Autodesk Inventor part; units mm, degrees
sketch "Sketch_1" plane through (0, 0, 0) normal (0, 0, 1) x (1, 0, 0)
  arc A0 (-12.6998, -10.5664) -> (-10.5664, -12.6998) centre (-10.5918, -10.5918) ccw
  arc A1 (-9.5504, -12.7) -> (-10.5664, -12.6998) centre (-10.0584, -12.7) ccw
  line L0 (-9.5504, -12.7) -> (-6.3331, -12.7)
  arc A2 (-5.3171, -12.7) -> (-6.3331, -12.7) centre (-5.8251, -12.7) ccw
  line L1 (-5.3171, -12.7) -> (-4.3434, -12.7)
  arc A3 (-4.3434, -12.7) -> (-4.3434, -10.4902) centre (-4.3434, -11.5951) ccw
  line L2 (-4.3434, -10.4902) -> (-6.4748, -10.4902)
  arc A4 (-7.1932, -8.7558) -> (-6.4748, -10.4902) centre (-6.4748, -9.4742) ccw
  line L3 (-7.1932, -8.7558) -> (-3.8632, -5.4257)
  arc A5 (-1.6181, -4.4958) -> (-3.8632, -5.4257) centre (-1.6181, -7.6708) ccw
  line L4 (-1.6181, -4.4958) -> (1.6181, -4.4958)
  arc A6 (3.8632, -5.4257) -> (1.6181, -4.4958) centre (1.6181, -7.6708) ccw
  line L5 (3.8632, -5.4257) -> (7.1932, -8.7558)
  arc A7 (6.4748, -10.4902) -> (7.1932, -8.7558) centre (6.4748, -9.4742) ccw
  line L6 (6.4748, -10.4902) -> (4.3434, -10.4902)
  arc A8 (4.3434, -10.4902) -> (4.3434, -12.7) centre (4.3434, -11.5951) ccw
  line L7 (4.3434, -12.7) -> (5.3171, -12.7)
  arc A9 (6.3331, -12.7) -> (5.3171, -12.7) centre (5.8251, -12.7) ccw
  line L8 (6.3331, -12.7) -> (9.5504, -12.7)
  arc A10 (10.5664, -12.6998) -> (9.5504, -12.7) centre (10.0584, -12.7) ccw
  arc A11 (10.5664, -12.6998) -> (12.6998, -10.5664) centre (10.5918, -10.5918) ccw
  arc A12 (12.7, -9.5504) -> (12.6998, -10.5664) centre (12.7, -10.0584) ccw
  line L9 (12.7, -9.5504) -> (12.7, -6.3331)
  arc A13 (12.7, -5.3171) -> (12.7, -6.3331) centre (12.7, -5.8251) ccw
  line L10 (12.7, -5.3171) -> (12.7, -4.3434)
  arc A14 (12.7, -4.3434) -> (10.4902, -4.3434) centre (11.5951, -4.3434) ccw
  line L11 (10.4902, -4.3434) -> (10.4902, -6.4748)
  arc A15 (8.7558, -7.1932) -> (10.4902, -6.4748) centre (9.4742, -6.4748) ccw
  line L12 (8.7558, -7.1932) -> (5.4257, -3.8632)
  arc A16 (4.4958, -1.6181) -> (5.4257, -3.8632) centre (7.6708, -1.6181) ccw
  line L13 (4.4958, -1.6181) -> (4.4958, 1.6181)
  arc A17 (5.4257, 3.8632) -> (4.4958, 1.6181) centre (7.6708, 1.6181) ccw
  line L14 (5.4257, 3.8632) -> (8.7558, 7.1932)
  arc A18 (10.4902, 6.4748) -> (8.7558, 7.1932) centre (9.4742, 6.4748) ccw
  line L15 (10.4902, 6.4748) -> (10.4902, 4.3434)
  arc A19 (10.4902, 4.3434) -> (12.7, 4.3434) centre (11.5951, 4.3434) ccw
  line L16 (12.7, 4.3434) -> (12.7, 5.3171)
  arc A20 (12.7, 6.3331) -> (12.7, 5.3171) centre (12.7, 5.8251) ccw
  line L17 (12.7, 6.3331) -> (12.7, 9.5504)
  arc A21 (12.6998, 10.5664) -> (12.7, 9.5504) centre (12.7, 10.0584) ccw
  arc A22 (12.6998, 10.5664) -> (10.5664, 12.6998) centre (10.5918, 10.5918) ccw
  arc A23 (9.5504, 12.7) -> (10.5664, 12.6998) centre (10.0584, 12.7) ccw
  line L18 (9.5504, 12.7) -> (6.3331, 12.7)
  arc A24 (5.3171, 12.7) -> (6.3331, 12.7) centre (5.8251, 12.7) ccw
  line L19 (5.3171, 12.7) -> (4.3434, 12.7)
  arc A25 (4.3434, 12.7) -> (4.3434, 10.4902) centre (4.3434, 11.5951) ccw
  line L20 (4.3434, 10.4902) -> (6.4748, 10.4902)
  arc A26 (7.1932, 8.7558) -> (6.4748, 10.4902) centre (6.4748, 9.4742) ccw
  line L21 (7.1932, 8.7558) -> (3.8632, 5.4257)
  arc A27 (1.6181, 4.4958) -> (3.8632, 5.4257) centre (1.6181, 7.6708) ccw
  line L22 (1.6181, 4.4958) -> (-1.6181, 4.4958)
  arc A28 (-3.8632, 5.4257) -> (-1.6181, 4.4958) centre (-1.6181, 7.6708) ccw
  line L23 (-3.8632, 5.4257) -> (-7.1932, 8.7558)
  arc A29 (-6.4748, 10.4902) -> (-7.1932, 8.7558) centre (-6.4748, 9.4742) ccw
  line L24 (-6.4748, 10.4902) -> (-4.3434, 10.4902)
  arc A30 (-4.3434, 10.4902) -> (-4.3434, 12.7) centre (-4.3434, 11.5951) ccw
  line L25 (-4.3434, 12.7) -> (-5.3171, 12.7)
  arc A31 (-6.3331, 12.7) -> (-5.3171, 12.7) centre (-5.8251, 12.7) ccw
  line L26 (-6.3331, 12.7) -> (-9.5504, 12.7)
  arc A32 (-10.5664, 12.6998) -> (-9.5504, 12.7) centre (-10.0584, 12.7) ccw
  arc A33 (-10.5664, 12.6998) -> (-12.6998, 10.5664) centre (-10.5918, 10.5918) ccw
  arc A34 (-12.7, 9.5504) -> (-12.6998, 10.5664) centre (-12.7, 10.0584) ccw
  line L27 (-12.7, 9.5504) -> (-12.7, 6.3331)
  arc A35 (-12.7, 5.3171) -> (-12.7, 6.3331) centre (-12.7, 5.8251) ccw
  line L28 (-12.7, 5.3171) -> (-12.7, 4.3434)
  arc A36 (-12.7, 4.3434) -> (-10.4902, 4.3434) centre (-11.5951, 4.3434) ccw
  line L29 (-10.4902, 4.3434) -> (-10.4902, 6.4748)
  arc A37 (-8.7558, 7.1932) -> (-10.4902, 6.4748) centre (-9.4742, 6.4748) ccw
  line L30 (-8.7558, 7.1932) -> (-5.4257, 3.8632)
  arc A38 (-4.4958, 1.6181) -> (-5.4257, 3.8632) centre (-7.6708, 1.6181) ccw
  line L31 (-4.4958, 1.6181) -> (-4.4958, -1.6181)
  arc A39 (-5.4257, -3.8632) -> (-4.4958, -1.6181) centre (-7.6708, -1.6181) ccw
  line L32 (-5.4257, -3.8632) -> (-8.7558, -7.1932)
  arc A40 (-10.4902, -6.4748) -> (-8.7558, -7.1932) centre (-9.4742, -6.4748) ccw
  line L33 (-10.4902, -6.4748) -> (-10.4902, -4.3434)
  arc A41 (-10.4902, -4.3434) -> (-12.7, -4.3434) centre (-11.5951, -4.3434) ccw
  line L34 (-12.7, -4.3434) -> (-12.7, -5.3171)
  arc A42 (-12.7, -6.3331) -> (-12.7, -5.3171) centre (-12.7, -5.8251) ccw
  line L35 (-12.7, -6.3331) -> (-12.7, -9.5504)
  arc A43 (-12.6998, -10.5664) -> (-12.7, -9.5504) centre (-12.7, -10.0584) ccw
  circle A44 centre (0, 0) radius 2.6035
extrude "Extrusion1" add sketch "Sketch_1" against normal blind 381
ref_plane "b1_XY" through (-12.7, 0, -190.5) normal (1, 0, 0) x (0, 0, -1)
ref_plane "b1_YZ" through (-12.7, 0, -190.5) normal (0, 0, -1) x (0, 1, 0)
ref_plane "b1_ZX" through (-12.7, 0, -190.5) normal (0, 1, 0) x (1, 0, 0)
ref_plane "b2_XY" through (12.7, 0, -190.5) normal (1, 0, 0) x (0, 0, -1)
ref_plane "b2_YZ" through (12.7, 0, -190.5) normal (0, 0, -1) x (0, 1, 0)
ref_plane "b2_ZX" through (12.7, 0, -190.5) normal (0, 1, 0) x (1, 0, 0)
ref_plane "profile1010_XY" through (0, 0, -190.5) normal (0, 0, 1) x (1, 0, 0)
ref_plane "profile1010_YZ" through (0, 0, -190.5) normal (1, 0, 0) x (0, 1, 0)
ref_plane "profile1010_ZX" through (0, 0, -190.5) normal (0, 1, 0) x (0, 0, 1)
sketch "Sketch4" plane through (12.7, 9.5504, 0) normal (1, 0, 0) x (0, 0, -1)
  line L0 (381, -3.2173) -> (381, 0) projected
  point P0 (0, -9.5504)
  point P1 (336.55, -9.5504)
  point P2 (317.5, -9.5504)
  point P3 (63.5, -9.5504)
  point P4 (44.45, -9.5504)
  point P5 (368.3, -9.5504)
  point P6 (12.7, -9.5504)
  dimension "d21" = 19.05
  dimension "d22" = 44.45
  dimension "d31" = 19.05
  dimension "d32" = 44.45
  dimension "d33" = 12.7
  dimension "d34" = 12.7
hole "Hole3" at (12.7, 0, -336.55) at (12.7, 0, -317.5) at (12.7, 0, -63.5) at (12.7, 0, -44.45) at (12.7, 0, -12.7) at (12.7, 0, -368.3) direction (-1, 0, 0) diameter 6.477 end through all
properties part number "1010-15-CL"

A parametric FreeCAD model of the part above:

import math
import FreeCAD as App
import Part
import Sketcher

V = App.Vector
Q = App.Units.Quantity

doc = App.newDocument("Part")
body = doc.addObject("PartDesign::Body", "Body")

# Sketch on XY plane
sketch1 = body.newObject("Sketcher::SketchObject", "Sketch")
sketch1.AttachmentSupport = (doc.getObject("XY_Plane"), [""])
sketch1.MapMode = "FlatFace"
sketch1.addGeometry([
    Part.ArcOfCircle(Part.Circle(V(-12.7, -10.1, 0), V(0, 0, 1), 0.5), math.radians(-90), math.radians(90)),  # 0
    Part.ArcOfCircle(Part.Circle(V(-10.6, -10.6, 0), V(0, 0, 1), 2.1), math.radians(179), math.radians(271)),  # 1
    Part.ArcOfCircle(Part.Circle(V(-10.1, -12.7, 0), V(0, 0, 1), 0.5), math.radians(0), math.radians(180)),  # 2
    Part.LineSegment(V(-9.6, -12.7, 0), V(-6.3, -12.7, 0)),  # 3
    Part.ArcOfCircle(Part.Circle(V(-5.8, -12.7, 0), V(0, 0, 1), 0.5), math.radians(0), math.radians(180)),  # 4
    Part.LineSegment(V(-5.3, -12.7, 0), V(-4.3, -12.7, 0)),  # 5
    Part.ArcOfCircle(Part.Circle(V(-4.3, -11.6, 0), V(0, 0, 1), 1.1), math.radians(-90), math.radians(90)),  # 6
    Part.LineSegment(V(-4.3, -10.5, 0), V(-6.5, -10.5, 0)),  # 7
    Part.ArcOfCircle(Part.Circle(V(-6.5, -9.5, 0), V(0, 0, 1), 1), math.radians(135), math.radians(270)),  # 8
    Part.LineSegment(V(-7.2, -8.8, 0), V(-3.9, -5.4, 0)),  # 9
    Part.ArcOfCircle(Part.Circle(V(-1.6, -7.7, 0), V(0, 0, 1), 3.2), math.radians(90), math.radians(135)),  # 10
    Part.LineSegment(V(-1.6, -4.5, 0), V(1.6, -4.5, 0)),  # 11
    Part.ArcOfCircle(Part.Circle(V(1.6, -7.7, 0), V(0, 0, 1), 3.2), math.radians(45), math.radians(90)),  # 12
    Part.LineSegment(V(3.9, -5.4, 0), V(7.2, -8.8, 0)),  # 13
    Part.ArcOfCircle(Part.Circle(V(6.5, -9.5, 0), V(0, 0, 1), 1), math.radians(-90), math.radians(45)),  # 14
    Part.LineSegment(V(6.5, -10.5, 0), V(4.3, -10.5, 0)),  # 15
    Part.ArcOfCircle(Part.Circle(V(4.3, -11.6, 0), V(0, 0, 1), 1.1), math.radians(90), math.radians(270)),  # 16
    Part.LineSegment(V(4.3, -12.7, 0), V(5.3, -12.7, 0)),  # 17
    Part.ArcOfCircle(Part.Circle(V(5.8, -12.7, 0), V(0, 0, 1), 0.5), math.radians(0), math.radians(180)),  # 18
    Part.LineSegment(V(6.3, -12.7, 0), V(9.6, -12.7, 0)),  # 19
    Part.ArcOfCircle(Part.Circle(V(10.1, -12.7, 0), V(0, 0, 1), 0.5), math.radians(0), math.radians(180)),  # 20
    Part.ArcOfCircle(Part.Circle(V(10.6, -10.6, 0), V(0, 0, 1), 2.1), math.radians(-91), math.radians(1)),  # 21
    Part.ArcOfCircle(Part.Circle(V(12.7, -10.1, 0), V(0, 0, 1), 0.5), math.radians(90), math.radians(270)),  # 22
    Part.LineSegment(V(12.7, -9.6, 0), V(12.7, -6.3, 0)),  # 23
    Part.ArcOfCircle(Part.Circle(V(12.7, -5.8, 0), V(0, 0, 1), 0.5), math.radians(90), math.radians(270)),  # 24
    Part.LineSegment(V(12.7, -5.3, 0), V(12.7, -4.3, 0)),  # 25
    Part.ArcOfCircle(Part.Circle(V(11.6, -4.3, 0), V(0, 0, 1), 1.1), math.radians(0), math.radians(180)),  # 26
    Part.LineSegment(V(10.5, -4.3, 0), V(10.5, -6.5, 0)),  # 27
    Part.ArcOfCircle(Part.Circle(V(9.5, -6.5, 0), V(0, 0, 1), 1), math.radians(-135), math.radians(0)),  # 28
    Part.LineSegment(V(8.8, -7.2, 0), V(5.4, -3.9, 0)),  # 29
    Part.ArcOfCircle(Part.Circle(V(7.7, -1.6, 0), V(0, 0, 1), 3.2), math.radians(180), math.radians(225)),  # 30
    Part.LineSegment(V(4.5, -1.6, 0), V(4.5, 1.6, 0)),  # 31
    Part.ArcOfCircle(Part.Circle(V(7.7, 1.6, 0), V(0, 0, 1), 3.2), math.radians(135), math.radians(180)),  # 32
    Part.LineSegment(V(5.4, 3.9, 0), V(8.8, 7.2, 0)),  # 33
    Part.ArcOfCircle(Part.Circle(V(9.5, 6.5, 0), V(0, 0, 1), 1), math.radians(0), math.radians(135)),  # 34
    Part.LineSegment(V(10.5, 6.5, 0), V(10.5, 4.3, 0)),  # 35
    Part.ArcOfCircle(Part.Circle(V(11.6, 4.3, 0), V(0, 0, 1), 1.1), math.radians(180), math.radians(360)),  # 36
    Part.LineSegment(V(12.7, 4.3, 0), V(12.7, 5.3, 0)),  # 37
    Part.ArcOfCircle(Part.Circle(V(12.7, 5.8, 0), V(0, 0, 1), 0.5), math.radians(90), math.radians(270)),  # 38
    Part.LineSegment(V(12.7, 6.3, 0), V(12.7, 9.6, 0)),  # 39
    Part.ArcOfCircle(Part.Circle(V(12.7, 10.1, 0), V(0, 0, 1), 0.5), math.radians(90), math.radians(270)),  # 40
    Part.ArcOfCircle(Part.Circle(V(10.6, 10.6, 0), V(0, 0, 1), 2.1), math.radians(-1), math.radians(91)),  # 41
    Part.ArcOfCircle(Part.Circle(V(10.1, 12.7, 0), V(0, 0, 1), 0.5), math.radians(180), math.radians(360)),  # 42
    Part.LineSegment(V(9.6, 12.7, 0), V(6.3, 12.7, 0)),  # 43
    Part.ArcOfCircle(Part.Circle(V(5.8, 12.7, 0), V(0, 0, 1), 0.5), math.radians(180), math.radians(360)),  # 44
    Part.LineSegment(V(5.3, 12.7, 0), V(4.3, 12.7, 0)),  # 45
    Part.ArcOfCircle(Part.Circle(V(4.3, 11.6, 0), V(0, 0, 1), 1.1), math.radians(90), math.radians(270)),  # 46
    Part.LineSegment(V(4.3, 10.5, 0), V(6.5, 10.5, 0)),  # 47
    Part.ArcOfCircle(Part.Circle(V(6.5, 9.5, 0), V(0, 0, 1), 1), math.radians(-45), math.radians(90)),  # 48
    Part.LineSegment(V(7.2, 8.8, 0), V(3.9, 5.4, 0)),  # 49
    Part.ArcOfCircle(Part.Circle(V(1.6, 7.7, 0), V(0, 0, 1), 3.2), math.radians(-90), math.radians(-45)),  # 50
    Part.LineSegment(V(1.6, 4.5, 0), V(-1.6, 4.5, 0)),  # 51
    Part.ArcOfCircle(Part.Circle(V(-1.6, 7.7, 0), V(0, 0, 1), 3.2), math.radians(-135), math.radians(-90)),  # 52
    Part.LineSegment(V(-3.9, 5.4, 0), V(-7.2, 8.8, 0)),  # 53
    Part.ArcOfCircle(Part.Circle(V(-6.5, 9.5, 0), V(0, 0, 1), 1), math.radians(90), math.radians(225)),  # 54
    Part.LineSegment(V(-6.5, 10.5, 0), V(-4.3, 10.5, 0)),  # 55
    Part.ArcOfCircle(Part.Circle(V(-4.3, 11.6, 0), V(0, 0, 1), 1.1), math.radians(-90), math.radians(90)),  # 56
    Part.LineSegment(V(-4.3, 12.7, 0), V(-5.3, 12.7, 0)),  # 57
    Part.ArcOfCircle(Part.Circle(V(-5.8, 12.7, 0), V(0, 0, 1), 0.5), math.radians(180), math.radians(360)),  # 58
    Part.LineSegment(V(-6.3, 12.7, 0), V(-9.6, 12.7, 0)),  # 59
    Part.ArcOfCircle(Part.Circle(V(-10.1, 12.7, 0), V(0, 0, 1), 0.5), math.radians(-180), math.radians(0)),  # 60
    Part.ArcOfCircle(Part.Circle(V(-10.6, 10.6, 0), V(0, 0, 1), 2.1), math.radians(89), math.radians(181)),  # 61
    Part.ArcOfCircle(Part.Circle(V(-12.7, 10.1, 0), V(0, 0, 1), 0.5), math.radians(-90), math.radians(90)),  # 62
    Part.LineSegment(V(-12.7, 9.6, 0), V(-12.7, 6.3, 0)),  # 63
    Part.ArcOfCircle(Part.Circle(V(-12.7, 5.8, 0), V(0, 0, 1), 0.5), math.radians(-90), math.radians(90)),  # 64
    Part.LineSegment(V(-12.7, 5.3, 0), V(-12.7, 4.3, 0)),  # 65
    Part.ArcOfCircle(Part.Circle(V(-11.6, 4.3, 0), V(0, 0, 1), 1.1), math.radians(180), math.radians(360)),  # 66
    Part.LineSegment(V(-10.5, 4.3, 0), V(-10.5, 6.5, 0)),  # 67
    Part.ArcOfCircle(Part.Circle(V(-9.5, 6.5, 0), V(0, 0, 1), 1), math.radians(45), math.radians(180)),  # 68
    Part.LineSegment(V(-8.8, 7.2, 0), V(-5.4, 3.9, 0)),  # 69
    Part.ArcOfCircle(Part.Circle(V(-7.7, 1.6, 0), V(0, 0, 1), 3.2), math.radians(0), math.radians(45)),  # 70
    Part.LineSegment(V(-4.5, 1.6, 0), V(-4.5, -1.6, 0)),  # 71
    Part.ArcOfCircle(Part.Circle(V(-7.7, -1.6, 0), V(0, 0, 1), 3.2), math.radians(-45), math.radians(0)),  # 72
    Part.LineSegment(V(-5.4, -3.9, 0), V(-8.8, -7.2, 0)),  # 73
    Part.ArcOfCircle(Part.Circle(V(-9.5, -6.5, 0), V(0, 0, 1), 1), math.radians(180), math.radians(315)),  # 74
    Part.LineSegment(V(-10.5, -6.5, 0), V(-10.5, -4.3, 0)),  # 75
    Part.ArcOfCircle(Part.Circle(V(-11.6, -4.3, 0), V(0, 0, 1), 1.1), math.radians(0), math.radians(180)),  # 76
    Part.LineSegment(V(-12.7, -4.3, 0), V(-12.7, -5.3, 0)),  # 77
    Part.ArcOfCircle(Part.Circle(V(-12.7, -5.8, 0), V(0, 0, 1), 0.5), math.radians(-90), math.radians(90)),  # 78
    Part.LineSegment(V(-12.7, -6.3, 0), V(-12.7, -9.6, 0)),  # 79
    Part.Circle(V(0, 0, 0), V(0, 0, 1), 2.6),  # 80
], False)
sketch1.addConstraint([
    Sketcher.Constraint("Coincident", 0, 1, 1, 1),
    Sketcher.Constraint("Coincident", 1, 2, 2, 2),
    Sketcher.Constraint("Coincident", 2, 1, 3, 1),
    Sketcher.Constraint("Coincident", 3, 2, 4, 2),
    Sketcher.Constraint("Coincident", 4, 1, 5, 1),
    Sketcher.Constraint("Tangent", 5, 2, 6, 1),
    Sketcher.Constraint("Tangent", 6, 2, 7, 1),
    Sketcher.Constraint("Tangent", 7, 2, 8, 2),
    Sketcher.Constraint("Tangent", 8, 1, 9, 1),
    Sketcher.Constraint("Tangent", 9, 2, 10, 2),
    Sketcher.Constraint("Tangent", 10, 1, 11, 1),
    Sketcher.Constraint("Tangent", 11, 2, 12, 2),
    Sketcher.Constraint("Tangent", 12, 1, 13, 1),
    Sketcher.Constraint("Tangent", 13, 2, 14, 2),
    Sketcher.Constraint("Tangent", 14, 1, 15, 1),
    Sketcher.Constraint("Tangent", 15, 2, 16, 1),
    Sketcher.Constraint("Tangent", 16, 2, 17, 1),
    Sketcher.Constraint("Coincident", 17, 2, 18, 2),
    Sketcher.Constraint("Coincident", 18, 1, 19, 1),
    Sketcher.Constraint("Coincident", 19, 2, 20, 2),
    Sketcher.Constraint("Coincident", 20, 1, 21, 1),
    Sketcher.Constraint("Coincident", 21, 2, 22, 2),
    Sketcher.Constraint("Coincident", 22, 1, 23, 1),
    Sketcher.Constraint("Coincident", 23, 2, 24, 2),
    Sketcher.Constraint("Coincident", 24, 1, 25, 1),
    Sketcher.Constraint("Tangent", 25, 2, 26, 1),
    Sketcher.Constraint("Tangent", 26, 2, 27, 1),
    Sketcher.Constraint("Tangent", 27, 2, 28, 2),
    Sketcher.Constraint("Tangent", 28, 1, 29, 1),
    Sketcher.Constraint("Tangent", 29, 2, 30, 2),
    Sketcher.Constraint("Tangent", 30, 1, 31, 1),
    Sketcher.Constraint("Tangent", 31, 2, 32, 2),
    Sketcher.Constraint("Tangent", 32, 1, 33, 1),
    Sketcher.Constraint("Tangent", 33, 2, 34, 2),
    Sketcher.Constraint("Tangent", 34, 1, 35, 1),
    Sketcher.Constraint("Tangent", 35, 2, 36, 1),
    Sketcher.Constraint("Tangent", 36, 2, 37, 1),
    Sketcher.Constraint("Coincident", 37, 2, 38, 2),
    Sketcher.Constraint("Coincident", 38, 1, 39, 1),
    Sketcher.Constraint("Coincident", 39, 2, 40, 2),
    Sketcher.Constraint("Coincident", 40, 1, 41, 1),
    Sketcher.Constraint("Coincident", 41, 2, 42, 2),
    Sketcher.Constraint("Coincident", 42, 1, 43, 1),
    Sketcher.Constraint("Coincident", 43, 2, 44, 2),
    Sketcher.Constraint("Coincident", 44, 1, 45, 1),
    Sketcher.Constraint("Tangent", 45, 2, 46, 1),
    Sketcher.Constraint("Tangent", 46, 2, 47, 1),
    Sketcher.Constraint("Tangent", 47, 2, 48, 2),
    Sketcher.Constraint("Tangent", 48, 1, 49, 1),
    Sketcher.Constraint("Tangent", 49, 2, 50, 2),
    Sketcher.Constraint("Tangent", 50, 1, 51, 1),
    Sketcher.Constraint("Tangent", 51, 2, 52, 2),
    Sketcher.Constraint("Tangent", 52, 1, 53, 1),
    Sketcher.Constraint("Tangent", 53, 2, 54, 2),
    Sketcher.Constraint("Tangent", 54, 1, 55, 1),
    Sketcher.Constraint("Tangent", 55, 2, 56, 1),
    Sketcher.Constraint("Tangent", 56, 2, 57, 1),
    Sketcher.Constraint("Coincident", 57, 2, 58, 2),
    Sketcher.Constraint("Coincident", 58, 1, 59, 1),
    Sketcher.Constraint("Coincident", 59, 2, 60, 2),
    Sketcher.Constraint("Coincident", 60, 1, 61, 1),
    Sketcher.Constraint("Coincident", 61, 2, 62, 2),
    Sketcher.Constraint("Coincident", 62, 1, 63, 1),
    Sketcher.Constraint("Coincident", 63, 2, 64, 2),
    Sketcher.Constraint("Coincident", 64, 1, 65, 1),
    Sketcher.Constraint("Tangent", 65, 2, 66, 1),
    Sketcher.Constraint("Tangent", 66, 2, 67, 1),
    Sketcher.Constraint("Tangent", 67, 2, 68, 2),
    Sketcher.Constraint("Tangent", 68, 1, 69, 1),
    Sketcher.Constraint("Tangent", 69, 2, 70, 2),
    Sketcher.Constraint("Tangent", 70, 1, 71, 1),
    Sketcher.Constraint("Tangent", 71, 2, 72, 2),
    Sketcher.Constraint("Tangent", 72, 1, 73, 1),
    Sketcher.Constraint("Tangent", 73, 2, 74, 2),
    Sketcher.Constraint("Tangent", 74, 1, 75, 1),
    Sketcher.Constraint("Tangent", 75, 2, 76, 1),
    Sketcher.Constraint("Tangent", 76, 2, 77, 1),
    Sketcher.Constraint("Coincident", 77, 2, 78, 2),
    Sketcher.Constraint("Coincident", 78, 1, 79, 1),
    Sketcher.Constraint("Coincident", 79, 2, 0, 2),
    Sketcher.Constraint("Horizontal", 3),
    Sketcher.Constraint("Horizontal", 5),
    Sketcher.Constraint("Horizontal", 7),
    Sketcher.Constraint("Horizontal", 11),
    Sketcher.Constraint("Horizontal", 15),
    Sketcher.Constraint("Horizontal", 17),
    Sketcher.Constraint("Horizontal", 19),
    Sketcher.Constraint("Vertical", 23),
    Sketcher.Constraint("Vertical", 25),
    Sketcher.Constraint("Vertical", 27),
    Sketcher.Constraint("Vertical", 31),
    Sketcher.Constraint("Vertical", 35),
    Sketcher.Constraint("Vertical", 37),
    Sketcher.Constraint("Vertical", 39),
    Sketcher.Constraint("Horizontal", 43),
    Sketcher.Constraint("Horizontal", 45),
    Sketcher.Constraint("Horizontal", 47),
    Sketcher.Constraint("Horizontal", 51),
    Sketcher.Constraint("Horizontal", 55),
    Sketcher.Constraint("Horizontal", 57),
    Sketcher.Constraint("Horizontal", 59),
    Sketcher.Constraint("Vertical", 63),
    Sketcher.Constraint("Vertical", 65),
    Sketcher.Constraint("Vertical", 67),
    Sketcher.Constraint("Vertical", 71),
    Sketcher.Constraint("Vertical", 75),
    Sketcher.Constraint("Vertical", 77),
    Sketcher.Constraint("Vertical", 79),
    Sketcher.Constraint("Coincident", 80, 3, -1, 1),
    Sketcher.Constraint("Equal", 0, 2),
    Sketcher.Constraint("Equal", 2, 4),
    Sketcher.Constraint("Equal", 10, 12),
    Sketcher.Constraint("Equal", 8, 14),
    Sketcher.Constraint("Equal", 6, 16),
    Sketcher.Constraint("Equal", 4, 18),
    Sketcher.Constraint("Equal", 18, 20),
    Sketcher.Constraint("Equal", 1, 21),
    Sketcher.Constraint("Equal", 20, 22),
    Sketcher.Constraint("Equal", 22, 24),
    Sketcher.Constraint("Equal", 16, 26),
    Sketcher.Constraint("Equal", 14, 28),
    Sketcher.Constraint("Equal", 12, 30),
    Sketcher.Constraint("Equal", 30, 32),
    Sketcher.Constraint("Equal", 28, 34),
    Sketcher.Constraint("Equal", 26, 36),
    Sketcher.Constraint("Equal", 24, 38),
    Sketcher.Constraint("Equal", 38, 40),
    Sketcher.Constraint("Equal", 21, 41),
    Sketcher.Constraint("Equal", 40, 42),
    Sketcher.Constraint("Equal", 42, 44),
    Sketcher.Constraint("Equal", 36, 46),
    Sketcher.Constraint("Equal", 34, 48),
    Sketcher.Constraint("Equal", 32, 50),
    Sketcher.Constraint("Equal", 50, 52),
    Sketcher.Constraint("Equal", 48, 54),
    Sketcher.Constraint("Equal", 46, 56),
    Sketcher.Constraint("Equal", 44, 58),
    Sketcher.Constraint("Equal", 58, 60),
    Sketcher.Constraint("Equal", 41, 61),
    Sketcher.Constraint("Equal", 60, 62),
    Sketcher.Constraint("Equal", 62, 64),
    Sketcher.Constraint("Equal", 56, 66),
    Sketcher.Constraint("Equal", 54, 68),
    Sketcher.Constraint("Equal", 52, 70),
    Sketcher.Constraint("Equal", 70, 72),
    Sketcher.Constraint("Equal", 68, 74),
    Sketcher.Constraint("Equal", 66, 76),
    Sketcher.Constraint("Equal", 64, 78),
    Sketcher.Constraint("Symmetric", 0, 3, 40, 3, -1, 1),
    Sketcher.Constraint("Symmetric", 1, 3, 41, 3, -1, 1),
    Sketcher.Constraint("Symmetric", 2, 3, 42, 3, -1, 1),
    Sketcher.Constraint("Symmetric", 4, 3, 44, 3, -1, 1),
    Sketcher.Constraint("Symmetric", 6, 3, 46, 3, -1, 1),
    Sketcher.Constraint("Symmetric", 10, 3, 50, 3, -1, 1),
    Sketcher.Constraint("Symmetric", 14, 3, 54, 3, -1, 1),
    Sketcher.Constraint("Symmetric", 18, 3, 58, 3, -1, 1),
    Sketcher.Constraint("Symmetric", 20, 3, 60, 3, -1, 1),
    Sketcher.Constraint("Symmetric", 21, 3, 61, 3, -1, 1),
    Sketcher.Constraint("Symmetric", 22, 3, 62, 3, -1, 1),
    Sketcher.Constraint("Symmetric", 24, 3, 64, 3, -1, 1),
    Sketcher.Constraint("Symmetric", 26, 3, 66, 3, -1, 1),
    Sketcher.Constraint("Symmetric", 30, 3, 70, 3, -1, 1),
    Sketcher.Constraint("Symmetric", 34, 3, 74, 3, -1, 1),
    Sketcher.Constraint("Symmetric", 38, 3, 78, 3, -1, 1),
    Sketcher.Constraint("Symmetric", 8, 3, 14, 3, -2),
    Sketcher.Constraint("Symmetric", 4, 3, 18, 3, -2),
    Sketcher.Constraint("Symmetric", 2, 3, 20, 3, -2),
    Sketcher.Constraint("Symmetric", 1, 3, 21, 3, -2),
    Sketcher.Constraint("Symmetric", 0, 3, 22, 3, -2),
    Sketcher.Constraint("Symmetric", 38, 3, 64, 3, -2),
    Sketcher.Constraint("Symmetric", 36, 3, 66, 3, -2),
    Sketcher.Constraint("Symmetric", 49, 2, 52, 1, -2),
    Sketcher.Constraint("Symmetric", 33, 2, 68, 1, -2),
    Sketcher.Constraint("Symmetric", 29, 2, 72, 1, -2),
    Sketcher.Constraint("Perpendicular", 9, 13),
    Sketcher.Constraint("Parallel", 13, 29),
    Sketcher.Constraint("Perpendicular", 29, 33),
    Sketcher.Constraint("Horizontal", 2, 3, 4, 3),
    Sketcher.Constraint("Horizontal", 26, 3, 76, 3),
    Sketcher.Constraint("Horizontal", 20, 3, 1, 2),
    Sketcher.Constraint("Horizontal", 1, 2, 2, 1),
    Sketcher.Constraint("Horizontal", 3, 2, 4, 1),
    Sketcher.Constraint("Horizontal", 17, 2, 18, 1),
    Sketcher.Constraint("Horizontal", 41, 2, 42, 1),
    Sketcher.Constraint("Horizontal", 57, 2, 58, 1),
    Sketcher.Constraint("Vertical", 22, 3, 24, 3),
    Sketcher.Constraint("Vertical", 16, 3, 46, 3),
    Sketcher.Constraint("Vertical", 6, 3, 56, 3),
    Sketcher.Constraint("Vertical", 78, 3, 0, 1),
    Sketcher.Constraint("Vertical", 21, 2, 22, 1),
    Sketcher.Constraint("Vertical", 23, 2, 24, 1),
    Sketcher.Constraint("Vertical", 37, 2, 38, 1),
    Sketcher.Constraint("Vertical", 61, 2, 62, 1),
    Sketcher.Constraint("Vertical", 77, 2, 78, 1),
    Sketcher.Constraint("Equal", 59, 23),
    Sketcher.Constraint("Equal", 57, 25),
    Sketcher.Constraint("Equal", 55, 27),
    Sketcher.Constraint("Equal", 51, 31),
    Sketcher.Constraint("Equal", 13, 29),
    Sketcher.Constraint("Radius", 0, Q("0.02 in")),
    Sketcher.Constraint("Radius", 8, Q("0.04 in")),
    Sketcher.Constraint("Diameter", 80, Q("0.205 in")),
    Sketcher.Constraint("Radius", 1, Q("0.083 in")),
    Sketcher.Constraint("Radius", 10, Q("0.125 in")),
    Sketcher.Constraint("DistanceX", 0, 3, -1, 1, Q("0.5 in")),
    Sketcher.Constraint("DistanceY", 2, 3, -1, 1, Q("0.5 in")),
    Sketcher.Constraint("Radius", 6, Q("0.0435 in")),
    Sketcher.Constraint("DistanceX", 11, 1, 11, 2, Q("0.1274 in")),
    Sketcher.Constraint("DistanceY", 0, 3, -1, 1, Q("0.396 in")),
    Sketcher.Constraint("DistanceX", 6, 3, -1, 1, Q("0.171 in")),
    Sketcher.Constraint("DistanceY", 10, 3, -1, 1, Q("0.302 in")),
    Sketcher.Constraint("DistanceX", 3, 1, 3, 2, 3.2173),
])
pad1 = body.newObject("PartDesign::Pad", "Pad")
pad1.Profile = sketch1
pad1.Length = Q("15 in")
pad1.Reversed = True

# Sketch on YZ plane
sketch2 = body.newObject("Sketcher::SketchObject", "Sketch001")
sketch2.AttachmentSupport = (doc.getObject("YZ_Plane"), [""])
sketch2.MapMode = "FlatFace"
sketch2.AttachmentOffset = App.Placement(V(0, 0, 0.5 * 25.4), App.Rotation())
sketch2.addGeometry([
    Part.Circle(V(0, -336.6, 0), V(0, 0, 1), 3.2),  # 0
    Part.Circle(V(0, -317.5, 0), V(0, 0, 1), 3.2),  # 1
    Part.Circle(V(0, -63.5, 0), V(0, 0, 1), 3.2),  # 2
    Part.Circle(V(0, -44.5, 0), V(0, 0, 1), 3.2),  # 3
    Part.Circle(V(0, -12.7, 0), V(0, 0, 1), 3.2),  # 4
    Part.Circle(V(0, -368.3, 0), V(0, 0, 1), 3.2),  # 5
], False)
sketch2.addConstraint([
    Sketcher.Constraint("Equal", 0, 1),
    Sketcher.Constraint("Equal", 1, 2),
    Sketcher.Constraint("Equal", 2, 3),
    Sketcher.Constraint("Equal", 3, 4),
    Sketcher.Constraint("Equal", 4, 5),
    Sketcher.Constraint("PointOnObject", 0, 3, -2),
    Sketcher.Constraint("PointOnObject", 1, 3, -2),
    Sketcher.Constraint("PointOnObject", 2, 3, -2),
    Sketcher.Constraint("PointOnObject", 3, 3, -2),
    Sketcher.Constraint("PointOnObject", 4, 3, -2),
    Sketcher.Constraint("PointOnObject", 5, 3, -2),
    Sketcher.Constraint("Diameter", 0, Q("0.255 in")),
    Sketcher.Constraint("DistanceY", 1, 3, 2, 3, Q("10 in")),
    Sketcher.Constraint("DistanceY", 2, 3, 4, 3, Q("2 in")),
    Sketcher.Constraint("DistanceY", 5, 3, 1, 3, Q("2 in")),
    Sketcher.Constraint("DistanceY", 1, 3, -1, 1, Q("12.5 in")),
    Sketcher.Constraint("DistanceY", 0, 3, 3, 3, Q("11.5 in")),
    Sketcher.Constraint("DistanceY", 0, 3, -1, 1, Q("13.25 in")),
])
doc.recompute()
hole = body.newObject("PartDesign::Hole", "Hole")
hole.Profile = sketch2
hole.ThreadType = "None"
hole.Diameter = Q("0.255 in")
hole.DepthType = "ThroughAll"

doc.recompute()
